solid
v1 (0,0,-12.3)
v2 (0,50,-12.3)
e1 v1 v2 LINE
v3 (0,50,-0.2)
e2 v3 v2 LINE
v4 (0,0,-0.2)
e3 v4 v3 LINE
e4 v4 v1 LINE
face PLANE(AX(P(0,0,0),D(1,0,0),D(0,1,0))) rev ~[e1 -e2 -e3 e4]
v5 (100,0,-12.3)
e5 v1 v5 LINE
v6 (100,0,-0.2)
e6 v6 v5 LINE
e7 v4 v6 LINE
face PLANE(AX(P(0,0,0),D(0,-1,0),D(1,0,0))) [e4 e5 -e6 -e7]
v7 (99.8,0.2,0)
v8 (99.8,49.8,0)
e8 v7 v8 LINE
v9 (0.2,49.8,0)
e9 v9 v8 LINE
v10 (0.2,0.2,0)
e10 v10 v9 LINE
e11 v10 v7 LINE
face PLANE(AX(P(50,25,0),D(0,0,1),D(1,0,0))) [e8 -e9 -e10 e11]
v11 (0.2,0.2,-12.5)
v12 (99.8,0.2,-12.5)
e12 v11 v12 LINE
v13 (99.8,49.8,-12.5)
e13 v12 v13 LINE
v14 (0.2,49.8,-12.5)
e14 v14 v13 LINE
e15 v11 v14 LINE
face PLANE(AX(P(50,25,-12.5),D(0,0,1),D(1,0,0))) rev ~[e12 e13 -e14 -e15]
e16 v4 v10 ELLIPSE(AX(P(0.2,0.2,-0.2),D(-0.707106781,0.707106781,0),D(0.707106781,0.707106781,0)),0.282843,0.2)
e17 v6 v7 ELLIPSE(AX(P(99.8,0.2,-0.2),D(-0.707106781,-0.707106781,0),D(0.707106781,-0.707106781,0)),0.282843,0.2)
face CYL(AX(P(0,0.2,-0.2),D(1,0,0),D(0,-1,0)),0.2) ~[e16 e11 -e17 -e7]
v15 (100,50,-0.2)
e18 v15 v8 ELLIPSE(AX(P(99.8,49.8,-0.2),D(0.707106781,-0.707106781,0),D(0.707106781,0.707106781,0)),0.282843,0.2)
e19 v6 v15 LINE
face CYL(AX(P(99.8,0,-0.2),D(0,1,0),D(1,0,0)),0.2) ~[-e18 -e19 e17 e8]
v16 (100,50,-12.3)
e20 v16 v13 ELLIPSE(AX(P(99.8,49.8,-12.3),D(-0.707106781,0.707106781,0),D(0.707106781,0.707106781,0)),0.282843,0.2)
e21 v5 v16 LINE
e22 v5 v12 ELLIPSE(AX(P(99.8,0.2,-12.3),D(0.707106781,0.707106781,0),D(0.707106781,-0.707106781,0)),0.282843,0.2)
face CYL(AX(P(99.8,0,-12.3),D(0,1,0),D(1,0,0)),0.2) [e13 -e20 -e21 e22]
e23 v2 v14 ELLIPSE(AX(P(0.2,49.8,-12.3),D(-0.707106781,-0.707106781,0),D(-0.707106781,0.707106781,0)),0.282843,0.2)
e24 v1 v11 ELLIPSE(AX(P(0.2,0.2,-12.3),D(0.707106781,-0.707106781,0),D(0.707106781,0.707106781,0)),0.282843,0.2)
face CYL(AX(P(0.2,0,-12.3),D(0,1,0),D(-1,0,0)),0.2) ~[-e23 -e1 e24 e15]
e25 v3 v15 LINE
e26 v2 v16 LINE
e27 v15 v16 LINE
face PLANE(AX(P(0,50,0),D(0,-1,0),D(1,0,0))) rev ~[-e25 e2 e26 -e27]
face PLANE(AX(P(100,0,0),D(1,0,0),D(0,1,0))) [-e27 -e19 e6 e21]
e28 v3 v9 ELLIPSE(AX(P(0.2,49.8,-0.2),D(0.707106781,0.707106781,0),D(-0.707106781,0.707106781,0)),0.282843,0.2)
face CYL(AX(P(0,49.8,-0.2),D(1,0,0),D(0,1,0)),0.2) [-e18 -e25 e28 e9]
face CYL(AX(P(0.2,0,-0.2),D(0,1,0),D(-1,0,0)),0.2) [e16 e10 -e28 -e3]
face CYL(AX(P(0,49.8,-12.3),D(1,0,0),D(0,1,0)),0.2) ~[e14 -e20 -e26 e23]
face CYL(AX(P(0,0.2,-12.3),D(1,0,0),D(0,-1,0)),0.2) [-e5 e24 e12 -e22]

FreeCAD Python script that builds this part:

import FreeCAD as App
import Part
import Sketcher
Q = App.Units.Quantity


def edges_at(feature, points):
    """Names of the edges that pass closest to the given points."""
    edges = feature.Shape.Edges
    near = lambda p: min(range(len(edges)), key=lambda i: edges[i].distToShape(Part.Vertex(*p))[0])
    return sorted({f"Edge{near(p) + 1}" for p in points})

doc = App.newDocument("Part")
body = doc.addObject("PartDesign::Body", "Body")

# Sketch on XY plane
sketch1 = doc.addObject("Sketcher::SketchObject", "Sketch")
body.addObject(sketch1)
sketch1.AttachmentSupport = (doc.XY_Plane, [""])
sketch1.MapMode = "FlatFace"
sketch1.addGeometry([
    Part.LineSegment(App.Vector(0, 50, 0), App.Vector(0, 0, 0)),
    Part.LineSegment(App.Vector(0, 0, 0), App.Vector(100, 0, 0)),
    Part.LineSegment(App.Vector(100, 0, 0), App.Vector(100, 50, 0)),
    Part.LineSegment(App.Vector(100, 50, 0), App.Vector(0, 50, 0)),
], False)
sketch1.addConstraint([
    Sketcher.Constraint("Coincident", 0, 2, 1, 1),
    Sketcher.Constraint("Coincident", 1, 2, 2, 1),
    Sketcher.Constraint("Coincident", 2, 2, 3, 1),
    Sketcher.Constraint("Coincident", 3, 2, 0, 1),
    Sketcher.Constraint("Vertical", 0),
    Sketcher.Constraint("Horizontal", 1),
    Sketcher.Constraint("Vertical", 2),
    Sketcher.Constraint("Horizontal", 3),
    Sketcher.Constraint("Coincident", 0, 2, -1, 1),
    Sketcher.Constraint("DistanceX", 1, 1, 1, 2, Q("100 mm")),
    Sketcher.Constraint("DistanceY", 0, 2, 0, 1, Q("50 mm")),
])
pad1 = doc.addObject("PartDesign::Pad", "Pad")
body.addObject(pad1)
pad1.Profile = sketch1
pad1.Length = 12.5
pad1.Reversed = True
doc.recompute()

fillet = doc.addObject("PartDesign::Fillet", "Fillet")
body.addObject(fillet)
fillet.Base = (pad1, edges_at(pad1, [
    (0, 25, 0),
    (50, 0, 0),
    (100, 25, 0),
    (50, 50, 0),
    (0, 25, -12.5),
    (50, 0, -12.5),
    (100, 25, -12.5),
    (50, 50, -12.5),
]))
fillet.Radius = 0.2

doc.recompute()
